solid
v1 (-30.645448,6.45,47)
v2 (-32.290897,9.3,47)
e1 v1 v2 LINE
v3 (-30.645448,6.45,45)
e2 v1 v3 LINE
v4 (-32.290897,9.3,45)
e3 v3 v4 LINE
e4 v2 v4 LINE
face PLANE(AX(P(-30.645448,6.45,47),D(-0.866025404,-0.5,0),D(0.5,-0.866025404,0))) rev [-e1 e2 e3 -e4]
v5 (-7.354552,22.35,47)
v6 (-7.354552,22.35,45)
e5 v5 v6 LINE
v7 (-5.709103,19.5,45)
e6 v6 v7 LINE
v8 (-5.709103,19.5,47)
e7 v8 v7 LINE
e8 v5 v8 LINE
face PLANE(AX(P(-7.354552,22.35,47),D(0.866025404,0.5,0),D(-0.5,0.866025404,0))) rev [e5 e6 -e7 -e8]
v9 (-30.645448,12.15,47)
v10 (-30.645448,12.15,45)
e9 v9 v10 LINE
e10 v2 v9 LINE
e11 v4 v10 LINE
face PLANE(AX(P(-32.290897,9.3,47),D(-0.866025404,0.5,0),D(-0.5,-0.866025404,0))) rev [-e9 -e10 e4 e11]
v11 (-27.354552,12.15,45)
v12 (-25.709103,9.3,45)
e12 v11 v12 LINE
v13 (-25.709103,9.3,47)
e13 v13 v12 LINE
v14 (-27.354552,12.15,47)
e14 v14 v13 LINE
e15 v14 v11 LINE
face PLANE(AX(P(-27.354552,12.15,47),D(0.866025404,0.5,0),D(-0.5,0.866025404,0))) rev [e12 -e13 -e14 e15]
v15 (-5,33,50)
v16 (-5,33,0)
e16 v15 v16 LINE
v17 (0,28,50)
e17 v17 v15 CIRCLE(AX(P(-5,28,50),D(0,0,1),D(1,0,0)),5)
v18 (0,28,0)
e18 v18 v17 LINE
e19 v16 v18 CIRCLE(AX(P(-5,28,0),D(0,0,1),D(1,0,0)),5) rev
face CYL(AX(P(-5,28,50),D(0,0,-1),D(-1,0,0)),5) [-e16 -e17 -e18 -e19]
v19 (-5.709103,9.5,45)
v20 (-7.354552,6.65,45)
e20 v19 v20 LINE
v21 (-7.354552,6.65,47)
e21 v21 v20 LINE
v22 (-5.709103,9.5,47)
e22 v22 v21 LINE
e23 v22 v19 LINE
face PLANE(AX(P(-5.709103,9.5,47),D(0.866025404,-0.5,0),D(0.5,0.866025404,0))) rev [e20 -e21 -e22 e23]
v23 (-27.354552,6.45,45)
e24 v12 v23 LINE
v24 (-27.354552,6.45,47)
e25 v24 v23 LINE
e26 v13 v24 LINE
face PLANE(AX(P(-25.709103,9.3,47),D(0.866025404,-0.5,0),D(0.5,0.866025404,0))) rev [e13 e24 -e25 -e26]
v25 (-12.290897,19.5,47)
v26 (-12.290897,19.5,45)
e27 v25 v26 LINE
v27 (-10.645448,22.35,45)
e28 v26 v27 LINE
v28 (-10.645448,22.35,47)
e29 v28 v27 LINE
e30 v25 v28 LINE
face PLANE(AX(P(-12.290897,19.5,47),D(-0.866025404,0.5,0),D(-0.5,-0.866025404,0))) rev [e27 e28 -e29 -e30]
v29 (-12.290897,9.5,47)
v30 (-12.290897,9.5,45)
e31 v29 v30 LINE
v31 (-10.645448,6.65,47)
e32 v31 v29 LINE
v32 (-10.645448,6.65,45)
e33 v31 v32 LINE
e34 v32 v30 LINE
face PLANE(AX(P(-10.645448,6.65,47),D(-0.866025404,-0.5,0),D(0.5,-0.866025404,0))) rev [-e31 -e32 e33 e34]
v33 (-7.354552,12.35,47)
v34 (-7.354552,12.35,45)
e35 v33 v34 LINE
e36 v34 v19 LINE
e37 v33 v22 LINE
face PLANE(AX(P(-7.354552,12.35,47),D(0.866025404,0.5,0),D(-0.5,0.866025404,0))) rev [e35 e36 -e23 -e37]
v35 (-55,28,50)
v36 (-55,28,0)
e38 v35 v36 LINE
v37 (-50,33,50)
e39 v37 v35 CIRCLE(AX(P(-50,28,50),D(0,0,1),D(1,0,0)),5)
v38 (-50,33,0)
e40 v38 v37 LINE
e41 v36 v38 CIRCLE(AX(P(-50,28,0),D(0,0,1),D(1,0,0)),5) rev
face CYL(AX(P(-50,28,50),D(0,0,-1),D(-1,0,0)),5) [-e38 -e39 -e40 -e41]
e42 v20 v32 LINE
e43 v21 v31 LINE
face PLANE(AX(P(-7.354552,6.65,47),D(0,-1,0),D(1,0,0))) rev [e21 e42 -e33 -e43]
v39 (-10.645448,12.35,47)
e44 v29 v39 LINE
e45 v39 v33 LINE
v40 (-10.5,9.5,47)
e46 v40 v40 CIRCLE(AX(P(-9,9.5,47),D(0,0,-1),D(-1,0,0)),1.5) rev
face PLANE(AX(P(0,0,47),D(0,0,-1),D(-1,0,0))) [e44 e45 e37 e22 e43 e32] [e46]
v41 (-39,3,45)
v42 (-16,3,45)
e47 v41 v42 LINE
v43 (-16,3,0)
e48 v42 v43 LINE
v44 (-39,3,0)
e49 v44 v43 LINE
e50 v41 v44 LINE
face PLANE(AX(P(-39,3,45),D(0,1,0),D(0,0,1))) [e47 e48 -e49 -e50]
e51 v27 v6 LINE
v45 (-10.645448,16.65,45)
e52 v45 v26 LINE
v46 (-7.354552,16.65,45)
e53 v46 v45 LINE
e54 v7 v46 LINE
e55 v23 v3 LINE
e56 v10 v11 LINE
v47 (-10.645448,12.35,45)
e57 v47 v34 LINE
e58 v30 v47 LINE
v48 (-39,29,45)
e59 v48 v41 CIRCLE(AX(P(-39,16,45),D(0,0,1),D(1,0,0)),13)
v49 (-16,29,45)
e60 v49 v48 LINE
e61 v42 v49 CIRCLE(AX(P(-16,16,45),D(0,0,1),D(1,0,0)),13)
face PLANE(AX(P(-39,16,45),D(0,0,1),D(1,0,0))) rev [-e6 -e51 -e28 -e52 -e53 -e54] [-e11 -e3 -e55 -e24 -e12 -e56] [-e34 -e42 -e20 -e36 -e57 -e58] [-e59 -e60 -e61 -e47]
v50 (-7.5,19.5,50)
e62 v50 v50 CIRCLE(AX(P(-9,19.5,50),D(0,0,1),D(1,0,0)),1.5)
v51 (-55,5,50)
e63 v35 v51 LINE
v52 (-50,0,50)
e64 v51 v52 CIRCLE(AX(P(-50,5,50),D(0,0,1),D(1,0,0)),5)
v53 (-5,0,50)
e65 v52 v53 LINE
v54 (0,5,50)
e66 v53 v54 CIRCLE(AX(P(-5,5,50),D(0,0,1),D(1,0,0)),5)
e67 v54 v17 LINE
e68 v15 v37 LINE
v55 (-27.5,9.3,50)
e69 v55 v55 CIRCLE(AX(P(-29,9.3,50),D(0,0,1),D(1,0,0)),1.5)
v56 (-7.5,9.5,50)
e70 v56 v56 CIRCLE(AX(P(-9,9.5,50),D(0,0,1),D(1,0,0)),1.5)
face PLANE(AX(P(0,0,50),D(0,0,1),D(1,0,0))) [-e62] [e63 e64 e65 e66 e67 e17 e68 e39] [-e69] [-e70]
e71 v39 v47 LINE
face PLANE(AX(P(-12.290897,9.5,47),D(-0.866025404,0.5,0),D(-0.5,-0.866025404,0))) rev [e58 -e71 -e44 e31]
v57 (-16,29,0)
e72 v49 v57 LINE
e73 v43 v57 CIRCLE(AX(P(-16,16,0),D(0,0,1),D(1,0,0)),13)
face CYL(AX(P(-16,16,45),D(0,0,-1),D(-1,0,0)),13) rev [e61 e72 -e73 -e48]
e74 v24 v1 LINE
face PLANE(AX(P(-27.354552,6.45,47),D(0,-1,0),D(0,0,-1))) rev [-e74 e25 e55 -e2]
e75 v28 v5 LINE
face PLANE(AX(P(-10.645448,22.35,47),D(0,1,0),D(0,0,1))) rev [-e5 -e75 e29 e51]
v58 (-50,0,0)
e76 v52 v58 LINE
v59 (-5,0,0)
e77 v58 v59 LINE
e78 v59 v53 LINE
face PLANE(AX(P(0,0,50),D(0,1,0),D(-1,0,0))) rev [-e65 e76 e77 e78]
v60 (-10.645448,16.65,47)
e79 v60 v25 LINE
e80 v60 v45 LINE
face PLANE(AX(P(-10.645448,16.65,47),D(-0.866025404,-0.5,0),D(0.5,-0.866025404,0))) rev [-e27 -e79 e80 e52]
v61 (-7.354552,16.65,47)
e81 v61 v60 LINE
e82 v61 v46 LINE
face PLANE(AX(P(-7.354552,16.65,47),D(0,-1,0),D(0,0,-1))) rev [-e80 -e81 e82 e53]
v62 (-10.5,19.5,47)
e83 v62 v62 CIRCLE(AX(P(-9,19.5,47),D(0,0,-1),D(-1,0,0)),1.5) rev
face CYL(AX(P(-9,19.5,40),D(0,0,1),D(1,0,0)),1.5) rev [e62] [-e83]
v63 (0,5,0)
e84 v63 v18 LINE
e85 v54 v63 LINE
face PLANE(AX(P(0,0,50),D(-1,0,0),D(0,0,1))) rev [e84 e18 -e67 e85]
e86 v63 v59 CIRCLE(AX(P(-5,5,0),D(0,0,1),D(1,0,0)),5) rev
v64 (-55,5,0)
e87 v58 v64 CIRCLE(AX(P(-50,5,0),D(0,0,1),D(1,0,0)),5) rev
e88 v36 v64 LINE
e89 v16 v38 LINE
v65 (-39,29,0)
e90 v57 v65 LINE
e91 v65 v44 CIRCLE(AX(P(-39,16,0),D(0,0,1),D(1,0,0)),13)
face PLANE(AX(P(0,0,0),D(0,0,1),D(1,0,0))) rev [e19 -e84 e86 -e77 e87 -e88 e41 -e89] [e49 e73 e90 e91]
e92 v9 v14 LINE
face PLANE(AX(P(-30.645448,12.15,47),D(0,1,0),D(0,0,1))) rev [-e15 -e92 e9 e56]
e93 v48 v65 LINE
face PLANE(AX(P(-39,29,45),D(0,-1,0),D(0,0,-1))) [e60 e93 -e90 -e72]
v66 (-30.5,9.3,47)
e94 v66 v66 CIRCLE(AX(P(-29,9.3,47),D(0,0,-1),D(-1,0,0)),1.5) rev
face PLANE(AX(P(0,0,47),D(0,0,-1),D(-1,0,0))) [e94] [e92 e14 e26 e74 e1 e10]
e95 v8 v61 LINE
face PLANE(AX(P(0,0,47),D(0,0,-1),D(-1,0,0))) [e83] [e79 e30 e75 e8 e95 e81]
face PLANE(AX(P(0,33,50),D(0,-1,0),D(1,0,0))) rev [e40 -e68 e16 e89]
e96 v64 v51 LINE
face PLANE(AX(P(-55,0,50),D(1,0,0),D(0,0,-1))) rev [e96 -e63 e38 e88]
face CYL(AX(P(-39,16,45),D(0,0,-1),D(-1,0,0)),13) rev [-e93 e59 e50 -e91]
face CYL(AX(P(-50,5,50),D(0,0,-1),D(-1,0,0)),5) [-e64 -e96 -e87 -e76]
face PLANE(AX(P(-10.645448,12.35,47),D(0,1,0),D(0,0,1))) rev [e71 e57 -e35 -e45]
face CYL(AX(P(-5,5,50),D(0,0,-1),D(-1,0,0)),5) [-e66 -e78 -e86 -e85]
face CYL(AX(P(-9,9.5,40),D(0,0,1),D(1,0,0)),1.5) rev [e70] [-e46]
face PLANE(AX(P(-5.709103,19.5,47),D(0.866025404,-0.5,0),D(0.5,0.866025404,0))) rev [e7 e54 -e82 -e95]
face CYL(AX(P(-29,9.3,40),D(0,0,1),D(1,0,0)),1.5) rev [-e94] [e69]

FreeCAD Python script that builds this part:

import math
import FreeCAD as App
import Part
import Sketcher
from FreeCAD import Vector
Q = App.Units.Quantity


def edges_at(feature, points):
    """Names of the edges that pass closest to the given points."""
    edges = feature.Shape.Edges
    near = lambda p: min(range(len(edges)), key=lambda i: edges[i].distToShape(Part.Vertex(*p))[0])
    return sorted({f"Edge{near(p) + 1}" for p in points})


def add_polygon(sketch, points):
    """Adds a closed chain of lines whose ends are joined by coincident constraints."""
    first, n = sketch.GeometryCount, len(points)
    for a, b in zip(points, points[1:] + points[:1]):
        sketch.addGeometry(Part.LineSegment(App.Vector(*a, 0), App.Vector(*b, 0)), False)
    for i in range(n):
        sketch.addConstraint(Sketcher.Constraint("Coincident", first + i, 2, first + (i + 1) % n, 1))

doc = App.newDocument("Part")
body = doc.addObject("PartDesign::Body", "Body")

sketch1 = body.newObject("Sketcher::SketchObject", "Sketch")
sketch1.AttachmentSupport = (doc.getObject("XY_Plane"), [""])
sketch1.MapMode = "FlatFace"
add_polygon(sketch1, [(-55, 33), (-55, 0), (0, 0), (0, 33)])
sketch1.addConstraint([
    Sketcher.Constraint("Vertical", 0),
    Sketcher.Constraint("Horizontal", 1),
    Sketcher.Constraint("Vertical", 2),
    Sketcher.Constraint("Horizontal", 3),
    Sketcher.Constraint("Coincident", 1, 2, -1, 1),
    Sketcher.Constraint("DistanceX", 1, 1, 1, 2, Q("55 mm")),
    Sketcher.Constraint("DistanceY", 0, 2, 0, 1, Q("33 mm")),
])
pad1 = body.newObject("PartDesign::Pad", "Pad")
pad1.Profile = sketch1
pad1.Length = 50

sketch2 = body.newObject("Sketcher::SketchObject", "Sketch001")
sketch2.AttachmentSupport = (doc.getObject("XY_Plane"), [""])
sketch2.MapMode = "FlatFace"
sketch2.addGeometry([
    Part.LineSegment(Vector(-16, 29, 0), Vector(-39, 29, 0)),
    Part.ArcOfCircle(Part.Circle(Vector(-39, 16, 0), Vector(0, 0, 1), 13), math.radians(90), math.radians(270)),
    Part.LineSegment(Vector(-39, 3, 0), Vector(-16, 3, 0)),
    Part.ArcOfCircle(Part.Circle(Vector(-16, 16, 0), Vector(0, 0, 1), 13), math.radians(-90), math.radians(90)),
], False)
sketch2.addConstraint([
    Sketcher.Constraint("Tangent", 0, 2, 1, 1),
    Sketcher.Constraint("Tangent", 1, 2, 2, 1),
    Sketcher.Constraint("Tangent", 2, 2, 3, 1),
    Sketcher.Constraint("Tangent", 3, 2, 0, 1),
    Sketcher.Constraint("Horizontal", 0),
    Sketcher.Constraint("Horizontal", 2),
    Sketcher.Constraint("Radius", 1, Q("13 mm")),
    Sketcher.Constraint("DistanceX", 0, 2, 0, 1, Q("23 mm")),
    Sketcher.Constraint("DistanceX", 1, 3, -1, 1, Q("39 mm")),
    Sketcher.Constraint("DistanceY", -1, 1, 1, 3, Q("16 mm")),
])
pocket1 = body.newObject("PartDesign::Pocket", "Pocket")
pocket1.Profile = sketch2
pocket1.Length = 45
pocket1.Reversed = True
doc.recompute()

fillet = body.newObject("PartDesign::Fillet", "Fillet")
fillet.Base = (pocket1, edges_at(pocket1, [
    (0, 0, 25),
    (-55, 0, 25),
    (-55, 33, 25),
    (0, 33, 25),
]))
fillet.Radius = 5

sketch3 = body.newObject("Sketcher::SketchObject", "Sketch002")
sketch3.AttachmentSupport = (doc.getObject("XY_Plane"), [""])
sketch3.MapMode = "FlatFace"
sketch3.AttachmentOffset = App.Placement(Vector(0, 0, 50), App.Rotation())
sketch3.addGeometry([
    Part.Circle(Vector(-29, 9.3, 0), Vector(0, 0, 1), 1.5),
    Part.Circle(Vector(-9, 19.5, 0), Vector(0, 0, 1), 1.5),
    Part.Circle(Vector(-9, 9.5, 0), Vector(0, 0, 1), 1.5),
], False)
sketch3.addConstraint([
    Sketcher.Constraint("Equal", 0, 1),
    Sketcher.Constraint("Equal", 1, 2),
    Sketcher.Constraint("Vertical", 1, 3, 2, 3),
    Sketcher.Constraint("Diameter", 0, Q("3 mm")),
    Sketcher.Constraint("DistanceX", 0, 3, -1, 1, Q("29 mm")),
    Sketcher.Constraint("DistanceX", 1, 3, -1, 1, Q("9 mm")),
    Sketcher.Constraint("DistanceY", 2, 3, 1, 3, Q("10 mm")),
    Sketcher.Constraint("DistanceY", -1, 1, 0, 3, Q("9.3 mm")),
    Sketcher.Constraint("DistanceY", -1, 1, 1, 3, Q("19.5 mm")),
])
pocket2 = body.newObject("PartDesign::Pocket", "Pocket001")
pocket2.Profile = sketch3
pocket2.Length = 10

sketch4 = body.newObject("Sketcher::SketchObject", "Sketch003")
sketch4.AttachmentSupport = (doc.getObject("XY_Plane"), [""])
sketch4.MapMode = "FlatFace"
sketch4.AttachmentOffset = App.Placement(Vector(0, 0, 45), App.Rotation())
add_polygon(sketch4, [(-27.354552, 6.45), (-30.645448, 6.45), (-32.290897, 9.3), (-30.645448, 12.15), (-27.354552, 12.15), (-25.709103, 9.3)])
add_polygon(sketch4, [(-7.354552, 6.65), (-10.645448, 6.65), (-12.290897, 9.5), (-10.645448, 12.35), (-7.354552, 12.35), (-5.709103, 9.5)])
add_polygon(sketch4, [(-7.354552, 16.65), (-10.645448, 16.65), (-12.290897, 19.5), (-10.645448, 22.35), (-7.354552, 22.35), (-5.709103, 19.5)])
sketch4.addConstraint([
    Sketcher.Constraint("Horizontal", 0),
    Sketcher.Constraint("Horizontal", 3),
    Sketcher.Constraint("Horizontal", 6),
    Sketcher.Constraint("Horizontal", 9),
    Sketcher.Constraint("Horizontal", 12),
    Sketcher.Constraint("Horizontal", 15),
    Sketcher.Constraint("Parallel", 1, 4),
    Sketcher.Constraint("Parallel", 2, 5),
    Sketcher.Constraint("Parallel", 4, 7),
    Sketcher.Constraint("Parallel", 5, 8),
    Sketcher.Constraint("Parallel", 7, 10),
    Sketcher.Constraint("Parallel", 8, 11),
    Sketcher.Constraint("Parallel", 10, 13),
    Sketcher.Constraint("Parallel", 11, 14),
    Sketcher.Constraint("Parallel", 13, 16),
    Sketcher.Constraint("Parallel", 14, 17),
    Sketcher.Constraint("Horizontal", 1, 2, 4, 2),
    Sketcher.Constraint("Horizontal", 7, 2, 10, 2),
    Sketcher.Constraint("Horizontal", 13, 2, 16, 2),
    Sketcher.Constraint("Vertical", 0, 2, 2, 2),
    Sketcher.Constraint("Vertical", 3, 2, 5, 2),
    Sketcher.Constraint("Vertical", 6, 2, 8, 2),
    Sketcher.Constraint("Vertical", 8, 2, 12, 2),
    Sketcher.Constraint("Vertical", 7, 2, 13, 2),
    Sketcher.Constraint("Vertical", 12, 2, 14, 2),
    Sketcher.Constraint("Vertical", 11, 2, 15, 2),
    Sketcher.Constraint("Equal", 3, 6),
    Sketcher.Constraint("Equal", 5, 7),
    Sketcher.Constraint("Angle", 1, Q("120 deg")),
    Sketcher.Constraint("DistanceX", 0, 2, 6, 2, Q("20 mm")),
    Sketcher.Constraint("DistanceY", 6, 2, 12, 2, Q("10 mm")),
    Sketcher.Constraint("DistanceY", -1, 1, 1, 2, Q("9.3 mm")),
    Sketcher.Constraint("DistanceY", -1, 1, 7, 2, Q("9.5 mm")),
    Sketcher.Constraint("DistanceY", 0, 2, 2, 2, Q("5.7 mm")),
    Sketcher.Constraint("DistanceX", 0, 2, 0, 1, Q("3.290897 mm")),
    Sketcher.Constraint("DistanceX", 0, 2, -1, 1, Q("30.645448 mm")),
])
pocket3 = body.newObject("PartDesign::Pocket", "Pocket002")
pocket3.Profile = sketch4
pocket3.Length = 2
pocket3.Reversed = True

doc.recompute()
